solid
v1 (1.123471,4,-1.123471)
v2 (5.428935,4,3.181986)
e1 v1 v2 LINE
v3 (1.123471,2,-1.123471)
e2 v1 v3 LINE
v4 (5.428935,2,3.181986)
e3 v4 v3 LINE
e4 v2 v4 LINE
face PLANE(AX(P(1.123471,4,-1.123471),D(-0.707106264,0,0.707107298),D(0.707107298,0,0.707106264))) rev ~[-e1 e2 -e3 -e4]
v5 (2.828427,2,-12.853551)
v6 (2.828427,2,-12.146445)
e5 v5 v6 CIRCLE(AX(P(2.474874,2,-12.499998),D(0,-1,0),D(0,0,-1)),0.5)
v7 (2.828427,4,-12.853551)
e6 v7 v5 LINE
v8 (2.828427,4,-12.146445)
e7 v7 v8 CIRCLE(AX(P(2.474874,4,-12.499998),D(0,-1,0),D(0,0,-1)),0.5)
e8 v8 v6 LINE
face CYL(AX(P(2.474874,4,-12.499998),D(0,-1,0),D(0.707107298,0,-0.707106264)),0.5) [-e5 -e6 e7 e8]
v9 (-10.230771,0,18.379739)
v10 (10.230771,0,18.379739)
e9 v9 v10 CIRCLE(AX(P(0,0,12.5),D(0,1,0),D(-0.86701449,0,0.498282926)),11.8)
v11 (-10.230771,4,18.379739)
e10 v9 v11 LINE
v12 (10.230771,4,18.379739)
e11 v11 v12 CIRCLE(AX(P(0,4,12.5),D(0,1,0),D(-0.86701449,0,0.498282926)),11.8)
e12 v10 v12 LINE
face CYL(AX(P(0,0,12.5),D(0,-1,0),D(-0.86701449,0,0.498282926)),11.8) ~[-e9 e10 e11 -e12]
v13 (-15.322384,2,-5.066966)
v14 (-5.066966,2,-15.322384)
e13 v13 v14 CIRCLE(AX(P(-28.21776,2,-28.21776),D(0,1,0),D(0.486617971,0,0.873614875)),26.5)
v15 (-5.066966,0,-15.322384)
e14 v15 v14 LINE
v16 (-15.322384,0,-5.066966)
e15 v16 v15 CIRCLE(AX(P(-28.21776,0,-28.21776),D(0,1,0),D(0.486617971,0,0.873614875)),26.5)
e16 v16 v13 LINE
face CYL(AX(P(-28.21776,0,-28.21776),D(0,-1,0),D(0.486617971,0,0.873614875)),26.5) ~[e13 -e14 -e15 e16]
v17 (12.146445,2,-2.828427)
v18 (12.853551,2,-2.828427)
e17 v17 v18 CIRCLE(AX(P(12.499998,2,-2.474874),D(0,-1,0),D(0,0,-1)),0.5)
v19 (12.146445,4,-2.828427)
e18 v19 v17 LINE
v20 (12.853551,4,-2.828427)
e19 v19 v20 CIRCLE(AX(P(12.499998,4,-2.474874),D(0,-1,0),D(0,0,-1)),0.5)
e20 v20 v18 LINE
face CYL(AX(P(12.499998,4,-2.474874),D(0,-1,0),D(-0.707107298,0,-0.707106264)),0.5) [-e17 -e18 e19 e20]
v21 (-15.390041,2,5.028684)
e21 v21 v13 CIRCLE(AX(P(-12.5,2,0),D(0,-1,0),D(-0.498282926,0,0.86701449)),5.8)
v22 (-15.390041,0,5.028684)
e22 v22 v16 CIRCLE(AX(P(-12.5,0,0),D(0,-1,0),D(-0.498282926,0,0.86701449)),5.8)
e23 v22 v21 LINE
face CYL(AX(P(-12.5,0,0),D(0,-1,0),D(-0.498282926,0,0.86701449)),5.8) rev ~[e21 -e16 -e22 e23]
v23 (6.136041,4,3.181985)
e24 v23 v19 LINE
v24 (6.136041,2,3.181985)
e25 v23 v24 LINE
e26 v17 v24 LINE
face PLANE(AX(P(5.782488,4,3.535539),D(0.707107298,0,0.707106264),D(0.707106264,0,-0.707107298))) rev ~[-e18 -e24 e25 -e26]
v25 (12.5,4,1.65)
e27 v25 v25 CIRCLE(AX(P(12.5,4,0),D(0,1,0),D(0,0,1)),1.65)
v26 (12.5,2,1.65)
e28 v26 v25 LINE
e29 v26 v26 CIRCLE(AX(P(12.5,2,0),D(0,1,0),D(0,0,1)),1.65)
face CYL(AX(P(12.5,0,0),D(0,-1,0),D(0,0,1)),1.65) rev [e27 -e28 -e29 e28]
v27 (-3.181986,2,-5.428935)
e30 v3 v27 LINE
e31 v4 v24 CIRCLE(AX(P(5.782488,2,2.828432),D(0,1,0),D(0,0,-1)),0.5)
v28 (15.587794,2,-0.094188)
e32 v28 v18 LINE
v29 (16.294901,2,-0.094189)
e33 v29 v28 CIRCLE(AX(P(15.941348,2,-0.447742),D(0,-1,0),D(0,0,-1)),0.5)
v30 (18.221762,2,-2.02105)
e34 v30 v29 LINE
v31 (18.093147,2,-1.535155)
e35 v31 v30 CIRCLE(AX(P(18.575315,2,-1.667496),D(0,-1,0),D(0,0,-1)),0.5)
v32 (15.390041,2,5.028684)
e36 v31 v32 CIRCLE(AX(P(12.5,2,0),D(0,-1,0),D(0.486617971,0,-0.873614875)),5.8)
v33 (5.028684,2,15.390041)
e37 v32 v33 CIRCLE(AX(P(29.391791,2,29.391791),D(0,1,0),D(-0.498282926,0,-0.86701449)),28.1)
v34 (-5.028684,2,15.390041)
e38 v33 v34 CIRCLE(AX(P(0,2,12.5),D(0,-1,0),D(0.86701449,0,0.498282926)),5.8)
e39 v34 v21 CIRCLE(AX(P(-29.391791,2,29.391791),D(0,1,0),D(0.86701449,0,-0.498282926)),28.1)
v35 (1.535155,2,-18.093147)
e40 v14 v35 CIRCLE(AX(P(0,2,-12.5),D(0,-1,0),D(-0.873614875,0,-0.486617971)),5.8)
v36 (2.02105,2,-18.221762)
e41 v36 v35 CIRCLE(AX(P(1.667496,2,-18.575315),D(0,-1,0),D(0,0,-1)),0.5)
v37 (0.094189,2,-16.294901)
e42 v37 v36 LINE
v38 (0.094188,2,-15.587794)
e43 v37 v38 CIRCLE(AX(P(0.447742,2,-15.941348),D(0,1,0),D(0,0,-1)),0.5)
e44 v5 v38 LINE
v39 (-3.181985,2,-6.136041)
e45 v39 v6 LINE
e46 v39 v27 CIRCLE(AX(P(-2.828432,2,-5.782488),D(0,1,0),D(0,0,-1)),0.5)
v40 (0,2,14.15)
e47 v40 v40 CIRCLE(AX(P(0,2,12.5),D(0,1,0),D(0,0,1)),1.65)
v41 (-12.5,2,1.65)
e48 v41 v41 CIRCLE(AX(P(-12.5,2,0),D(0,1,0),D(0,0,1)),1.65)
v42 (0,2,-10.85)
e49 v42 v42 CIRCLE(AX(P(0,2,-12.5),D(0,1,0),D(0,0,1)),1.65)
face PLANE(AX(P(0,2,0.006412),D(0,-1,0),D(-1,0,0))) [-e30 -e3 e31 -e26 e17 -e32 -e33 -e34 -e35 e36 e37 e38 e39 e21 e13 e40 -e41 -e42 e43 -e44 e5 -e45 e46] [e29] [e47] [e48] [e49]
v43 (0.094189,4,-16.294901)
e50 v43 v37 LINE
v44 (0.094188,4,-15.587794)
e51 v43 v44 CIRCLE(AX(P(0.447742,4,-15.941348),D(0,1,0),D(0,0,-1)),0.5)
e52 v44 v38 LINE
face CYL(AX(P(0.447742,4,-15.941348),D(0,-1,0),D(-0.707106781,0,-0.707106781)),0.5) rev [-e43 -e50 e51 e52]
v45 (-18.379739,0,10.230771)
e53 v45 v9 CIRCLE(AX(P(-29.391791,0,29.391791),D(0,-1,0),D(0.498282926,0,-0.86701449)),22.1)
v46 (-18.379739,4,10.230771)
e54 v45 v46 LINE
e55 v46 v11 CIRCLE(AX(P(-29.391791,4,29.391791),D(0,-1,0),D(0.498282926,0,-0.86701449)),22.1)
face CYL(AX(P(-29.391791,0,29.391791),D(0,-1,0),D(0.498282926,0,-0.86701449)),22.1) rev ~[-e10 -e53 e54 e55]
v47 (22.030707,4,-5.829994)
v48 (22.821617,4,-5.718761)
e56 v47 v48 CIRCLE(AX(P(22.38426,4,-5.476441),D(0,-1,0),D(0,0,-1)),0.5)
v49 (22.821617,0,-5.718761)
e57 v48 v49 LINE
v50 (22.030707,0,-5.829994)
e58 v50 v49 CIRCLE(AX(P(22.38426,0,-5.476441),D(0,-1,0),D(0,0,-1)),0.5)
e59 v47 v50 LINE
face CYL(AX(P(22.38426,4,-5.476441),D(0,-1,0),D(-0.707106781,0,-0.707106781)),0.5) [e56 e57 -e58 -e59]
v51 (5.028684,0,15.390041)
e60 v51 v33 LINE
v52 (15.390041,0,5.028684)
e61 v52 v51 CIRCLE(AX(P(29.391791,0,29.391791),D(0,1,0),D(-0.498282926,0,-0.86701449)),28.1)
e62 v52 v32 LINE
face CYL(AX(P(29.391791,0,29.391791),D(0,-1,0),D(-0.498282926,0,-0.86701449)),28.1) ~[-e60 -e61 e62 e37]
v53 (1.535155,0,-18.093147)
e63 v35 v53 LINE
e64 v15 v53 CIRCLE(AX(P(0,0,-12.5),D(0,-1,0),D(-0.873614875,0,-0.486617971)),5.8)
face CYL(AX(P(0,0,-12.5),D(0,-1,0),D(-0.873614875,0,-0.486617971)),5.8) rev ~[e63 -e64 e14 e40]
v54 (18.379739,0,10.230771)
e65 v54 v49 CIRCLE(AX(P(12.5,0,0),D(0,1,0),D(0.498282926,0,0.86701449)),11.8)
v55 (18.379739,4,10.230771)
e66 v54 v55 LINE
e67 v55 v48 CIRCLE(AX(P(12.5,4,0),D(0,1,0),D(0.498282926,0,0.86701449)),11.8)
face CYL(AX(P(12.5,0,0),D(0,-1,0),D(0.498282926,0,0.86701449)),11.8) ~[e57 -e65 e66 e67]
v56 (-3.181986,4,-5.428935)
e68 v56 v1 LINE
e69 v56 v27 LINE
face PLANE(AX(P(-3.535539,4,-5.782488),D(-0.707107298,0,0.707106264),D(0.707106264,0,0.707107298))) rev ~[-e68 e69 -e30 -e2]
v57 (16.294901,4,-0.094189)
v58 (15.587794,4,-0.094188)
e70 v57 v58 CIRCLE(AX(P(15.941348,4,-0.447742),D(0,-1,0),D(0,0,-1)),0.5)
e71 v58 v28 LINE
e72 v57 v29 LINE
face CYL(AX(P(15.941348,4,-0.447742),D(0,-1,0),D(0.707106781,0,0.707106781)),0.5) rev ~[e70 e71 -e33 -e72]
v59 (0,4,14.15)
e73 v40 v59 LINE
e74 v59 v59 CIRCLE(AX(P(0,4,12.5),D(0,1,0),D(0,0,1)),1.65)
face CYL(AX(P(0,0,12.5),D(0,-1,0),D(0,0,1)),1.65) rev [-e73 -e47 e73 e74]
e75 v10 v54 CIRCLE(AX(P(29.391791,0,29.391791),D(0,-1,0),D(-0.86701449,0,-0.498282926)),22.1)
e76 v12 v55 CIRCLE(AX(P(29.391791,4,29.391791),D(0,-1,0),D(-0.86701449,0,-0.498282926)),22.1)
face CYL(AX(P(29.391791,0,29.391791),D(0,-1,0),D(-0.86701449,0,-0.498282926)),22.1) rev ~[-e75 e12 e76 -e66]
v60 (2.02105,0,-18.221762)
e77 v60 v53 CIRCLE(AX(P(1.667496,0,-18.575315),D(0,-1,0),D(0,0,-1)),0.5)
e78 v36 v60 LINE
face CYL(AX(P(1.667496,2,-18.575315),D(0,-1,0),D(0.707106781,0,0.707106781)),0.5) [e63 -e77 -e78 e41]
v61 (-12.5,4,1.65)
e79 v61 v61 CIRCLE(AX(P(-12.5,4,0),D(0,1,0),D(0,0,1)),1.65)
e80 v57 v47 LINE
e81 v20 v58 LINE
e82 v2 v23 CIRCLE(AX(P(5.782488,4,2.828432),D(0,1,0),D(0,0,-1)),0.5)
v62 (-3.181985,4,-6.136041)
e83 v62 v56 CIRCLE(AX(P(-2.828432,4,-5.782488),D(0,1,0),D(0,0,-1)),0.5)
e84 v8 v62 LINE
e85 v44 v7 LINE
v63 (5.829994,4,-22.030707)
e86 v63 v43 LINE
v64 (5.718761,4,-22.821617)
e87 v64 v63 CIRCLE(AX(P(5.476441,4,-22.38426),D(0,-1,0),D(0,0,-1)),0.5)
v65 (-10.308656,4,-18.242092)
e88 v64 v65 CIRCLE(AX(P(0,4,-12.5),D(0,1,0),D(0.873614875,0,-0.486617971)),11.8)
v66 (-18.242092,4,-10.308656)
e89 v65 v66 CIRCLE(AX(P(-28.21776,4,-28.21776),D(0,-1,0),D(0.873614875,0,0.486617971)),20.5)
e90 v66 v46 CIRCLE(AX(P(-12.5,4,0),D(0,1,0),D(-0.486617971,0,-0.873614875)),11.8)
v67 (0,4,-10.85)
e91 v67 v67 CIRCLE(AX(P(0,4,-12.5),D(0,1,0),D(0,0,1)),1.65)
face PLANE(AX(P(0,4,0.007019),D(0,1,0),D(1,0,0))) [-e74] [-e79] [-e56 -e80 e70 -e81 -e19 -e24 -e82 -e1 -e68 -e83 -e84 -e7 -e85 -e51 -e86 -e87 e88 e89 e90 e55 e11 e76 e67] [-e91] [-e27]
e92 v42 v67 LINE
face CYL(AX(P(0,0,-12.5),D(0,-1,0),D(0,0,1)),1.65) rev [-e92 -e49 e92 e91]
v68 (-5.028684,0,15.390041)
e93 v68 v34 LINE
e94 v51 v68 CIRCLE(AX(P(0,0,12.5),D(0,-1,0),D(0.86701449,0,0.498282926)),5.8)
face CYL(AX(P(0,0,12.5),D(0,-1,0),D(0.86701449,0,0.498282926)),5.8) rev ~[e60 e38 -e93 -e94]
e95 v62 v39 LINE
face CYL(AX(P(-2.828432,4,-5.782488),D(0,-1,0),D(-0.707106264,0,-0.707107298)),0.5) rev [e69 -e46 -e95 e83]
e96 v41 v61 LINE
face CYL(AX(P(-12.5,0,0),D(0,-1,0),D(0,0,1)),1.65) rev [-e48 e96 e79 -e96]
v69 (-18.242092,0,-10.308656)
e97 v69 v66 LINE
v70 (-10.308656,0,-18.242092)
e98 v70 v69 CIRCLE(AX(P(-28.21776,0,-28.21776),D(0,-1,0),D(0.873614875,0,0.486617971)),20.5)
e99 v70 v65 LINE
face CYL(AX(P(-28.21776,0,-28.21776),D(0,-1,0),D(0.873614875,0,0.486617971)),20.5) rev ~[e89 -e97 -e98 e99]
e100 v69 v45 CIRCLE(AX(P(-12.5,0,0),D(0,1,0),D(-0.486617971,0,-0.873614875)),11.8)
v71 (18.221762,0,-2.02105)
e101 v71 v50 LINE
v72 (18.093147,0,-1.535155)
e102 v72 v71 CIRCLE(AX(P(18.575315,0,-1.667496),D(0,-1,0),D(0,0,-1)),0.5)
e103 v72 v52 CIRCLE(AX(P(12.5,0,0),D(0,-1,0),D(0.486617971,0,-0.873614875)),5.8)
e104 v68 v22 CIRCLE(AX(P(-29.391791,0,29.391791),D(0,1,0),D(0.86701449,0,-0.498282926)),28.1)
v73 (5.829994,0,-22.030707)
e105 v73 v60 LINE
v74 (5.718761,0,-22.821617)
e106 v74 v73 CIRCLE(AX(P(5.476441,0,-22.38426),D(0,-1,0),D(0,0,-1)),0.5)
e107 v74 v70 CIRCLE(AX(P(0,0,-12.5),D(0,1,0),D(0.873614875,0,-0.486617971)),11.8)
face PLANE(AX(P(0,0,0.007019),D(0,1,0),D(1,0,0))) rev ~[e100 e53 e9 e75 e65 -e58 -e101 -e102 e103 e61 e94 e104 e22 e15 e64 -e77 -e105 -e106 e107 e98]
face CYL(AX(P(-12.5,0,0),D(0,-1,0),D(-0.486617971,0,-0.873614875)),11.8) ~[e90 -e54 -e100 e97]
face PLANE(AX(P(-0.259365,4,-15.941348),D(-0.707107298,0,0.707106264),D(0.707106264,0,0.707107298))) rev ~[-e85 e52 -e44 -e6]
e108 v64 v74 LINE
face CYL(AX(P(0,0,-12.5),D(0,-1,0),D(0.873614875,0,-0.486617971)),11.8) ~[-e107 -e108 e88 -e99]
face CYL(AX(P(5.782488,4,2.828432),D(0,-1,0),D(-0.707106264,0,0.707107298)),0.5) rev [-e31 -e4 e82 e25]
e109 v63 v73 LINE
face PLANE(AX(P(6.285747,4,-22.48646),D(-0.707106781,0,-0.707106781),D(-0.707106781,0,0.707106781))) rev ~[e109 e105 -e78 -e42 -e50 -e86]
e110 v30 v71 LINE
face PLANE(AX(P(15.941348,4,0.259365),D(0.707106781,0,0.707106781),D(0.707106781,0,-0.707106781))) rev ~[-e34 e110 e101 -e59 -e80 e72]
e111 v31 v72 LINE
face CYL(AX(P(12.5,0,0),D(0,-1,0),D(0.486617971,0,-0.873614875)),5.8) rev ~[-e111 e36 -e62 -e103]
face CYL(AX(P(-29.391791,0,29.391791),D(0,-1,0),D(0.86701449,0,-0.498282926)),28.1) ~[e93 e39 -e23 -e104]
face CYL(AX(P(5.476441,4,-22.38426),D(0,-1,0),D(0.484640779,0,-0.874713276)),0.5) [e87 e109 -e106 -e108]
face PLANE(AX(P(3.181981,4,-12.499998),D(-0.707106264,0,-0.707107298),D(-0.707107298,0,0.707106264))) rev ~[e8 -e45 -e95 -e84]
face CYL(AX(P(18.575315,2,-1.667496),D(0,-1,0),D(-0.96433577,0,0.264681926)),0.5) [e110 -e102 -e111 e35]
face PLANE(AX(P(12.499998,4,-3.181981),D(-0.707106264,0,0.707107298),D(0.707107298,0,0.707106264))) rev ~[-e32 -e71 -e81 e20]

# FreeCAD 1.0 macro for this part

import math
import FreeCAD as App
import Part
import Sketcher

V = App.Vector
Q = App.Units.Quantity


def edges_at(feature, points):
    """Names of the edges that pass closest to the given points."""
    edges = feature.Shape.Edges
    near = lambda p: min(range(len(edges)), key=lambda i: edges[i].distToShape(Part.Vertex(*p))[0])
    return sorted({f"Edge{near(p) + 1}" for p in points})

doc = App.newDocument("Part")
body = doc.addObject("PartDesign::Body", "Body")

# Sketch on XZ plane
sketch1 = doc.addObject("Sketcher::SketchObject", "Sketch")
body.addObject(sketch1)
sketch1.AttachmentSupport = (doc.XZ_Plane, [""])
sketch1.MapMode = "FlatFace"
sketch1.addGeometry([
    Part.ArcOfCircle(Part.Circle(V(-28.2, -28.2, 0), V(0, 0, 1), 20.5), math.radians(29), math.radians(61)),  # 0
    Part.ArcOfCircle(Part.Circle(V(-12.5, 0, 0), V(0, 0, 1), 11.8), math.radians(120), math.radians(241)),  # 1
    Part.ArcOfCircle(Part.Circle(V(-29.4, 29.4, 0), V(0, 0, 1), 22.1), math.radians(-60), math.radians(-30)),  # 2
    Part.ArcOfCircle(Part.Circle(V(0, 12.5, 0), V(0, 0, 1), 11.8), math.radians(30), math.radians(150)),  # 3
    Part.ArcOfCircle(Part.Circle(V(29.4, 29.4, 0), V(0, 0, 1), 22.1), math.radians(-150), math.radians(-120)),  # 4
    Part.ArcOfCircle(Part.Circle(V(12.5, 0, 0), V(0, 0, 1), 11.8), math.radians(-61), math.radians(60)),  # 5
    Part.ArcOfCircle(Part.Circle(V(28.2, -28.2, 0), V(0, 0, 1), 20.5), math.radians(119), math.radians(151)),  # 6
    Part.ArcOfCircle(Part.Circle(V(0, -12.5, 0), V(0, 0, 1), 11.8), math.radians(-151), math.radians(-29)),  # 7
    Part.Circle(V(0, 12.5, 0), V(0, 0, 1), 1.6),  # 8
    Part.Circle(V(-12.5, 0, 0), V(0, 0, 1), 1.6),  # 9
    Part.Circle(V(12.5, 0, 0), V(0, 0, 1), 1.6),  # 10
    Part.Circle(V(0, -12.5, 0), V(0, 0, 1), 1.6),  # 11
], False)
sketch1.addConstraint([
    Sketcher.Constraint("Tangent", 0, 2, 1, 2),
    Sketcher.Constraint("Tangent", 1, 1, 2, 1),
    Sketcher.Constraint("Tangent", 2, 2, 3, 2),
    Sketcher.Constraint("Tangent", 3, 1, 4, 1),
    Sketcher.Constraint("Tangent", 4, 2, 5, 2),
    Sketcher.Constraint("Tangent", 5, 1, 6, 1),
    Sketcher.Constraint("Tangent", 6, 2, 7, 2),
    Sketcher.Constraint("Tangent", 7, 1, 0, 1),
    Sketcher.Constraint("Coincident", 8, 3, 3, 3),
    Sketcher.Constraint("Coincident", 9, 3, 1, 3),
    Sketcher.Constraint("Coincident", 10, 3, 5, 3),
    Sketcher.Constraint("Coincident", 11, 3, 7, 3),
    Sketcher.Constraint("Equal", 1, 3),
    Sketcher.Constraint("Equal", 2, 4),
    Sketcher.Constraint("Equal", 3, 5),
    Sketcher.Constraint("Equal", 0, 6),
    Sketcher.Constraint("Equal", 5, 7),
    Sketcher.Constraint("Equal", 8, 9),
    Sketcher.Constraint("Equal", 9, 10),
    Sketcher.Constraint("Equal", 10, 11),
    Sketcher.Constraint("Symmetric", 1, 3, 5, 3, -1, 1),
    Sketcher.Constraint("Symmetric", 3, 3, 7, 3, -1, 1),
    Sketcher.Constraint("Symmetric", 2, 3, 4, 3, -2),
    Sketcher.Constraint("Diameter", 8, Q("3.3 mm")),
    Sketcher.Constraint("Radius", 0, Q("20.5 mm")),
    Sketcher.Constraint("Radius", 1, Q("11.8 mm")),
    Sketcher.Constraint("Radius", 2, Q("22.1 mm")),
    Sketcher.Constraint("DistanceX", 1, 3, 5, 3, Q("25 mm")),
    Sketcher.Constraint("DistanceY", 7, 3, 3, 3, Q("25 mm")),
])
pad1 = doc.addObject("PartDesign::Pad", "Pad")
body.addObject(pad1)
pad1.Profile = sketch1
pad1.Length = 4
pad1.Reversed = True

# Sketch on XZ plane
sketch2 = doc.addObject("Sketcher::SketchObject", "Sketch001")
body.addObject(sketch2)
sketch2.AttachmentSupport = (doc.XZ_Plane, [""])
sketch2.MapMode = "FlatFace"
sketch2.addGeometry([
    Part.ArcOfCircle(Part.Circle(V(29.4, 29.4, 0), V(0, 0, 1), 28.1), math.radians(-150), math.radians(-120)),  # 0
    Part.ArcOfCircle(Part.Circle(V(12.5, 0, 0), V(0, 0, 1), 5.8), math.radians(-61), math.radians(60)),  # 1
    Part.ArcOfCircle(Part.Circle(V(28.2, -28.2, 0), V(0, 0, 1), 26.5), math.radians(119), math.radians(151)),  # 2
    Part.ArcOfCircle(Part.Circle(V(0, -12.5, 0), V(0, 0, 1), 5.8), math.radians(-151), math.radians(-29)),  # 3
    Part.ArcOfCircle(Part.Circle(V(-28.2, -28.2, 0), V(0, 0, 1), 26.5), math.radians(29), math.radians(61)),  # 4
    Part.ArcOfCircle(Part.Circle(V(-12.5, 0, 0), V(0, 0, 1), 5.8), math.radians(120), math.radians(241)),  # 5
    Part.ArcOfCircle(Part.Circle(V(-29.4, 29.4, 0), V(0, 0, 1), 28.1), math.radians(-60), math.radians(-30)),  # 6
    Part.ArcOfCircle(Part.Circle(V(0, 12.5, 0), V(0, 0, 1), 5.8), math.radians(30), math.radians(150)),  # 7
    Part.Circle(V(0, 12.5, 0), V(0, 0, 1), 1.6),  # 8
    Part.Circle(V(12.5, 0, 0), V(0, 0, 1), 1.6),  # 9
    Part.Circle(V(-12.5, 0, 0), V(0, 0, 1), 1.6),  # 10
    Part.Circle(V(0, -12.5, 0), V(0, 0, 1), 1.6),  # 11
], False)
sketch2.addConstraint([
    Sketcher.Constraint("Tangent", 0, 2, 1, 2),
    Sketcher.Constraint("Tangent", 1, 1, 2, 1),
    Sketcher.Constraint("Tangent", 2, 2, 3, 2),
    Sketcher.Constraint("Tangent", 3, 1, 4, 1),
    Sketcher.Constraint("Tangent", 4, 2, 5, 2),
    Sketcher.Constraint("Tangent", 5, 1, 6, 1),
    Sketcher.Constraint("Tangent", 6, 2, 7, 2),
    Sketcher.Constraint("Tangent", 7, 1, 0, 1),
    Sketcher.Constraint("Coincident", 8, 3, 7, 3),
    Sketcher.Constraint("Coincident", 9, 3, 1, 3),
    Sketcher.Constraint("Coincident", 10, 3, 5, 3),
    Sketcher.Constraint("Coincident", 11, 3, 3, 3),
    Sketcher.Constraint("Equal", 1, 3),
    Sketcher.Constraint("Equal", 2, 4),
    Sketcher.Constraint("Equal", 3, 5),
    Sketcher.Constraint("Equal", 0, 6),
    Sketcher.Constraint("Equal", 5, 7),
    Sketcher.Constraint("Equal", 8, 9),
    Sketcher.Constraint("Equal", 9, 10),
    Sketcher.Constraint("Equal", 10, 11),
    Sketcher.Constraint("Symmetric", 1, 3, 5, 3, -1, 1),
    Sketcher.Constraint("Symmetric", 3, 3, 7, 3, -1, 1),
    Sketcher.Constraint("Symmetric", 2, 3, 4, 3, -2),
    Sketcher.Constraint("Diameter", 8, Q("3.3 mm")),
    Sketcher.Constraint("Radius", 0, Q("28.1 mm")),
    Sketcher.Constraint("Radius", 1, Q("5.8 mm")),
    Sketcher.Constraint("Radius", 2, Q("26.5 mm")),
    Sketcher.Constraint("DistanceX", 5, 3, 1, 3, Q("25 mm")),
    Sketcher.Constraint("DistanceY", 3, 3, 7, 3, Q("25 mm")),
])
pocket1 = doc.addObject("PartDesign::Pocket", "Pocket")
body.addObject(pocket1)
pocket1.Profile = sketch2
pocket1.Length = 2

# Sketch on XZ plane
sketch3 = doc.addObject("Sketcher::SketchObject", "Sketch002")
body.addObject(sketch3)
sketch3.AttachmentSupport = (doc.XZ_Plane, [""])
sketch3.MapMode = "FlatFace"
sketch3.AttachmentOffset = App.Placement(V(0, 0, -4), App.Rotation())
sketch3.addGeometry([
    Part.LineSegment(V(6.3, -22.5, 0), V(-0.3, -15.9, 0)),  # 0
    Part.LineSegment(V(-0.3, -15.9, 0), V(3.2, -12.5, 0)),  # 1
    Part.LineSegment(V(3.2, -12.5, 0), V(-3.5, -5.8, 0)),  # 2
    Part.LineSegment(V(-3.5, -5.8, 0), V(1.1, -1.1, 0)),  # 3
    Part.LineSegment(V(1.1, -1.1, 0), V(5.8, 3.5, 0)),  # 4
    Part.LineSegment(V(5.8, 3.5, 0), V(12.5, -3.2, 0)),  # 5
    Part.LineSegment(V(12.5, -3.2, 0), V(15.9, 0.3, 0)),  # 6
    Part.LineSegment(V(15.9, 0.3, 0), V(22.5, -6.3, 0)),  # 7
    Part.ArcOfCircle(Part.Circle(V(12.5, 0, 0), V(0, 0, 1), 11.8), math.radians(-61), math.radians(-32)),  # 8
    Part.ArcOfCircle(Part.Circle(V(28.2, -28.2, 0), V(0, 0, 1), 20.5), math.radians(119), math.radians(151)),  # 9
    Part.ArcOfCircle(Part.Circle(V(0, -12.5, 0), V(0, 0, 1), 11.8), math.radians(-58), math.radians(-29)),  # 10
], False)
sketch3.addConstraint([
    Sketcher.Constraint("Coincident", 0, 2, 1, 1),
    Sketcher.Constraint("Coincident", 1, 2, 2, 1),
    Sketcher.Constraint("Coincident", 2, 2, 3, 1),
    Sketcher.Constraint("Coincident", 3, 2, 4, 1),
    Sketcher.Constraint("Coincident", 4, 2, 5, 1),
    Sketcher.Constraint("Coincident", 5, 2, 6, 1),
    Sketcher.Constraint("Coincident", 6, 2, 7, 1),
    Sketcher.Constraint("Coincident", 7, 2, 8, 2),
    Sketcher.Constraint("Tangent", 8, 1, 9, 1),
    Sketcher.Constraint("Tangent", 9, 2, 10, 2),
    Sketcher.Constraint("Coincident", 10, 1, 0, 1),
    Sketcher.Constraint("Equal", 8, 10),
    Sketcher.Constraint("PointOnObject", 8, 3, -1),
    Sketcher.Constraint("PointOnObject", 10, 3, -2),
    Sketcher.Constraint("Perpendicular", 0, 1),
    Sketcher.Constraint("Perpendicular", 1, 2),
    Sketcher.Constraint("Perpendicular", 2, 3),
    Sketcher.Constraint("Parallel", 3, 4),
    Sketcher.Constraint("Perpendicular", 4, 5),
    Sketcher.Constraint("Perpendicular", 5, 6),
    Sketcher.Constraint("Perpendicular", 6, 7),
    Sketcher.Constraint("Equal", 3, 4),
    Sketcher.Constraint("Equal", 2, 5),
    Sketcher.Constraint("Equal", 1, 6),
    Sketcher.Constraint("Equal", 0, 7),
    Sketcher.Constraint("Radius", 8, Q("11.8 mm")),
    Sketcher.Constraint("Radius", 9, Q("20.5 mm")),
    Sketcher.Constraint("Angle", 0, Q("135 deg")),
    Sketcher.Constraint("Distance", 2, Q("9.5 mm")),
    Sketcher.Constraint("DistanceX", -1, 1, 8, 3, Q("12.5 mm")),
    Sketcher.Constraint("DistanceY", 10, 3, -1, 1, Q("12.5 mm")),
    Sketcher.Constraint("Distance", 1, Q("4.866801 mm")),
    Sketcher.Constraint("DistanceX", 2, 2, 9, 3, Q("31.753299 mm")),
    Sketcher.Constraint("Distance", 3, Q("6.58884 mm")),
])
pocket2 = doc.addObject("PartDesign::Pocket", "Pocket001")
body.addObject(pocket2)
pocket2.Profile = sketch3
pocket2.Type = "ThroughAll"
pocket2.Reversed = True
doc.recompute()

fillet = doc.addObject("PartDesign::Fillet", "Fillet")
body.addObject(fillet)
fillet.Base = (pocket2, edges_at(pocket2, [
    (15.941, 3, 0.259),
    (12.5, 3, -3.182),
    (5.782, 3, 3.536),
    (-3.536, 3, -5.782),
    (3.182, 3, -12.5),
    (18.01, 1, -1.81),
    (22.486, 2, -6.286),
    (1.81, 1, -18.01),
    (-0.259, 3, -15.941),
    (6.286, 2, -22.486),
]))
fillet.Radius = 0.5

doc.recompute()
